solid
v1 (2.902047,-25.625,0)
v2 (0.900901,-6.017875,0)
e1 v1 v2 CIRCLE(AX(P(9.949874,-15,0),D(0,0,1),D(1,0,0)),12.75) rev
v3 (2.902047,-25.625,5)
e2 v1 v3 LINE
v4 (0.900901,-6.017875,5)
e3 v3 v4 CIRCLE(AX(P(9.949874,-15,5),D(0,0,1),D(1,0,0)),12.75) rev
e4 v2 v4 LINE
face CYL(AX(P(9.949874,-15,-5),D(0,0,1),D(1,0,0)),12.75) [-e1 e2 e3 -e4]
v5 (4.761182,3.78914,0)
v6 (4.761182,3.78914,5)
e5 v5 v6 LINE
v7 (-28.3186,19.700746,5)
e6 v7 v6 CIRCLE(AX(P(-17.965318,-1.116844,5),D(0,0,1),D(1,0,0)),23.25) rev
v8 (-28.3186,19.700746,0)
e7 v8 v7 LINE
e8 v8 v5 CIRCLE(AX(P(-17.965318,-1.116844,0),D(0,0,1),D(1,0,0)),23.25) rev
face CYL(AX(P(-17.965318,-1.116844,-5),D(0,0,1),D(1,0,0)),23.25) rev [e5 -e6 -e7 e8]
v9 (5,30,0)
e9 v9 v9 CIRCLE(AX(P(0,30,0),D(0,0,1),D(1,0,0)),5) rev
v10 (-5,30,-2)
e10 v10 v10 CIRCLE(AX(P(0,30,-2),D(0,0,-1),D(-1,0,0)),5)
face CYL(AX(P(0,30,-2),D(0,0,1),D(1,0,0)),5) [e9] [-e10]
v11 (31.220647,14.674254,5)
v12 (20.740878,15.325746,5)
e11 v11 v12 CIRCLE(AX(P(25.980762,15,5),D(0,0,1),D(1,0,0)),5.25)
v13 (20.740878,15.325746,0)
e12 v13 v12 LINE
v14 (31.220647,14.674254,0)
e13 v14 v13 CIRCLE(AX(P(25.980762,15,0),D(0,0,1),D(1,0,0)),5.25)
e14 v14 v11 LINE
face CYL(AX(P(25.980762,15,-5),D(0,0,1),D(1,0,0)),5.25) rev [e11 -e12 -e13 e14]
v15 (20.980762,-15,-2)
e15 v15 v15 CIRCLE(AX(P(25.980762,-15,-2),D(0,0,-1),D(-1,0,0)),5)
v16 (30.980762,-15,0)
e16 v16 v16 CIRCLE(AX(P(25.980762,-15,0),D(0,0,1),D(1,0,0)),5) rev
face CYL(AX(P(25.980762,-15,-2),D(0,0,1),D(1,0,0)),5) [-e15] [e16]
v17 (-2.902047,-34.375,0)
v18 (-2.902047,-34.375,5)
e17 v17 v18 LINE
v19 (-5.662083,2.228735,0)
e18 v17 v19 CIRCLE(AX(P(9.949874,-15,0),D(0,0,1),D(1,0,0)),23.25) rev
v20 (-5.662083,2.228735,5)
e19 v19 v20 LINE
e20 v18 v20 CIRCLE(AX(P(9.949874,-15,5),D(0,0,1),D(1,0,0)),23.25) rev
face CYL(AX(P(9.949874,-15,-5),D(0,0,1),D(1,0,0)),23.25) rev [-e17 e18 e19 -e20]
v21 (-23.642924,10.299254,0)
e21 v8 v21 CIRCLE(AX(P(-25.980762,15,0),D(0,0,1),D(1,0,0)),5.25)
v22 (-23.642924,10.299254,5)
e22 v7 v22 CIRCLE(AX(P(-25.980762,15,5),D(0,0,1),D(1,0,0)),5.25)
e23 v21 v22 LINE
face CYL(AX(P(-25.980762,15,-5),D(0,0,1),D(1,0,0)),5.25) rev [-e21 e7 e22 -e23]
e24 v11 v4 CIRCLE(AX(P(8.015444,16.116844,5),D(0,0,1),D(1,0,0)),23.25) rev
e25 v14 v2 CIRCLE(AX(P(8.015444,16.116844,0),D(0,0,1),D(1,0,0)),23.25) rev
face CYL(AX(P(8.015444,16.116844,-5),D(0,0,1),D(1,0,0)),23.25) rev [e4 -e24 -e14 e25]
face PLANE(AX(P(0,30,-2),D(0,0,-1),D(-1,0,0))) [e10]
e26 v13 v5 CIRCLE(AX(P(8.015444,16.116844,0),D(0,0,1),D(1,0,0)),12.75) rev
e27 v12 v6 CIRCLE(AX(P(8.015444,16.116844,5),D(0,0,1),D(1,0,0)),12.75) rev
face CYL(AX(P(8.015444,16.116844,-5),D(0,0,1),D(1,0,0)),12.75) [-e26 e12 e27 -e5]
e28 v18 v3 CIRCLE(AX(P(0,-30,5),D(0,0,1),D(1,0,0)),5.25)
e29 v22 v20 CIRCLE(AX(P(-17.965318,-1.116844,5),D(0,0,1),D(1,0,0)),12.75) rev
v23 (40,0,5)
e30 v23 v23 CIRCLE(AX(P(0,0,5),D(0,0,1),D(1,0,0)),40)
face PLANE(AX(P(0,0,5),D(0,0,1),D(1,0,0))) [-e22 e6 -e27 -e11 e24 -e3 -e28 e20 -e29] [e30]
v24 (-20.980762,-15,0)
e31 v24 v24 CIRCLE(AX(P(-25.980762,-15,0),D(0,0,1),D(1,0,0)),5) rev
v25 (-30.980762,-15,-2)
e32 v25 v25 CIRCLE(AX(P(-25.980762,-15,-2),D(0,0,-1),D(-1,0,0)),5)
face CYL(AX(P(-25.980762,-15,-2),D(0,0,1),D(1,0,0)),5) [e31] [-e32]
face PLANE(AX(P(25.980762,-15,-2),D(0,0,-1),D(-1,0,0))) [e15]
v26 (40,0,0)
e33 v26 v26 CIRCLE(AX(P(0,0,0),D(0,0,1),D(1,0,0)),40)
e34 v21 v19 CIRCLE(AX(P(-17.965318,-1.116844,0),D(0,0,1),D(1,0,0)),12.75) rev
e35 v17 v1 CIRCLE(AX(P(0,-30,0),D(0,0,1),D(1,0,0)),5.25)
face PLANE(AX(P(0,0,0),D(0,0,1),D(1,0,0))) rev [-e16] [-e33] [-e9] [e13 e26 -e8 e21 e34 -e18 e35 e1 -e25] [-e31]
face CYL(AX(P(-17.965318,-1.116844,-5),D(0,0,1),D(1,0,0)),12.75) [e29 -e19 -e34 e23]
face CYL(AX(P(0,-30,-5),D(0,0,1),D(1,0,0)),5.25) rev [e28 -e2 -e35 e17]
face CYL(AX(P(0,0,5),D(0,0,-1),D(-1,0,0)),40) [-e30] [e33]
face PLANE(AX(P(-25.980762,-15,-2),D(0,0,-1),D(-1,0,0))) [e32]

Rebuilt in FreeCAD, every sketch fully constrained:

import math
import FreeCAD as App
import Part
import Sketcher

V = App.Vector
Q = App.Units.Quantity

doc = App.newDocument("Part")
params = doc.addObject("Spreadsheet::Sheet", "Params")
for row, (alias, value) in enumerate([
    ("sketch1_diameter", "80 mm"),
    ("pad1_length", "5 mm"),
    ("sketch2_radius", "12.75 mm"),
    ("sketch2_radius2", "23.25 mm"),
    ("pocket1_length", "10 mm"),
    ("sketch3_diameter", "10 mm"),
    ("pad2_length", "2 mm"),
], start=1):
    params.set(f"A{row}", alias)
    params.set(f"B{row}", "=" + value)
    params.setAlias(f"B{row}", alias)

body = doc.addObject("PartDesign::Body", "Body")

sketch1 = body.newObject("Sketcher::SketchObject", "Sketch")
sketch1.AttachmentSupport = (doc.getObject("XY_Plane"), [""])
sketch1.MapMode = "FlatFace"
sketch1.addGeometry(Part.Circle(V(0, 0, 0), V(0, 0, 1), 40), False)
sketch1.addConstraint(Sketcher.Constraint("Coincident", 0, 3, -1, 1))
sketch1.addConstraint(Sketcher.Constraint("Diameter", 0, Q("80 mm")))
sketch1.setExpression("Constraints[1]", "Params.sketch1_diameter")
pad1 = body.newObject("PartDesign::Pad", "Pad")
pad1.Profile = sketch1
pad1.setExpression("Length", "Params.pad1_length")

sketch2 = body.newObject("Sketcher::SketchObject", "Sketch001")
sketch2.AttachmentSupport = (doc.getObject("XY_Plane"), [""])
sketch2.MapMode = "FlatFace"
sketch2.AttachmentOffset = App.Placement(V(0, 0, 5), App.Rotation())
sketch2.addGeometry(Part.ArcOfCircle(Part.Circle(V(8, 16, 0), V(0, 0, 1), 13), math.radians(-105), math.radians(-4)), False)
sketch2.addGeometry(Part.ArcOfCircle(Part.Circle(V(-18, -1, 0), V(0, 0, 1), 23), math.radians(12), math.radians(116)), False)
sketch2.addGeometry(Part.ArcOfCircle(Part.Circle(V(-26, 15, 0), V(0, 0, 1), 5), math.radians(116), math.radians(296)), False)
sketch2.addGeometry(Part.ArcOfCircle(Part.Circle(V(-18, -1, 0), V(0, 0, 1), 13), math.radians(15), math.radians(116)), False)
sketch2.addGeometry(Part.ArcOfCircle(Part.Circle(V(10, -15, 0), V(0, 0, 1), 23), math.radians(132), math.radians(236)), False)
sketch2.addGeometry(Part.ArcOfCircle(Part.Circle(V(0, -30, 0), V(0, 0, 1), 5), math.radians(-124), math.radians(56)), False)
sketch2.addGeometry(Part.ArcOfCircle(Part.Circle(V(10, -15, 0), V(0, 0, 1), 13), math.radians(135), math.radians(236)), False)
sketch2.addGeometry(Part.ArcOfCircle(Part.Circle(V(8, 16, 0), V(0, 0, 1), 23), math.radians(-108), math.radians(-4)), False)
sketch2.addGeometry(Part.ArcOfCircle(Part.Circle(V(26, 15, 0), V(0, 0, 1), 5), math.radians(-4), math.radians(176)), False)
sketch2.addConstraint(Sketcher.Constraint("Coincident", 0, 1, 1, 1))
sketch2.addConstraint(Sketcher.Constraint("Tangent", 1, 2, 2, 1))
sketch2.addConstraint(Sketcher.Constraint("Tangent", 2, 2, 3, 2))
sketch2.addConstraint(Sketcher.Constraint("Coincident", 3, 1, 4, 1))
sketch2.addConstraint(Sketcher.Constraint("Tangent", 4, 2, 5, 1))
sketch2.addConstraint(Sketcher.Constraint("Tangent", 5, 2, 6, 2))
sketch2.addConstraint(Sketcher.Constraint("Coincident", 6, 1, 7, 1))
sketch2.addConstraint(Sketcher.Constraint("Tangent", 7, 2, 8, 1))
sketch2.addConstraint(Sketcher.Constraint("Tangent", 8, 2, 0, 2))
sketch2.addConstraint(Sketcher.Constraint("Coincident", 3, 3, 1, 3))
sketch2.addConstraint(Sketcher.Constraint("Coincident", 6, 3, 4, 3))
sketch2.addConstraint(Sketcher.Constraint("Coincident", 7, 3, 0, 3))
sketch2.addConstraint(Sketcher.Constraint("Equal", 0, 3))
sketch2.addConstraint(Sketcher.Constraint("Equal", 1, 4))
sketch2.addConstraint(Sketcher.Constraint("Equal", 2, 5))
sketch2.addConstraint(Sketcher.Constraint("Equal", 4, 7))
sketch2.addConstraint(Sketcher.Constraint("Symmetric", 2, 3, 8, 3, -2))
sketch2.addConstraint(Sketcher.Constraint("PointOnObject", 5, 3, -2))
sketch2.addConstraint(Sketcher.Constraint("Radius", 0, Q("12.75 mm")))
sketch2.addConstraint(Sketcher.Constraint("Radius", 1, Q("23.25 mm")))
sketch2.addConstraint(Sketcher.Constraint("DistanceY", -1, 1, 2, 3, Q("15 mm")))
sketch2.addConstraint(Sketcher.Constraint("DistanceY", 4, 3, -1, 1, Q("15 mm")))
sketch2.addConstraint(Sketcher.Constraint("DistanceY", 5, 3, -1, 1, Q("30 mm")))
sketch2.addConstraint(Sketcher.Constraint("DistanceX", 1, 2, -1, 1, Q("28.3186 mm")))
sketch2.addConstraint(Sketcher.Constraint("DistanceX", -1, 1, 6, 1, Q("0.900901 mm")))
sketch2.addConstraint(Sketcher.Constraint("DistanceX", 1, 3, 0, 1, Q("22.7265 mm")))
sketch2.setExpression("Constraints[18]", "Params.sketch2_radius")
sketch2.setExpression("Constraints[19]", "Params.sketch2_radius2")
pocket1 = body.newObject("PartDesign::Pocket", "Pocket")
pocket1.Profile = sketch2
pocket1.setExpression("Length", "Params.pocket1_length")

sketch3 = body.newObject("Sketcher::SketchObject", "Sketch002")
sketch3.AttachmentSupport = (doc.getObject("XY_Plane"), [""])
sketch3.MapMode = "FlatFace"
sketch3.addGeometry(Part.Circle(V(0, 30, 0), V(0, 0, 1), 5), False)
sketch3.addGeometry(Part.Circle(V(-26, -15, 0), V(0, 0, 1), 5), False)
sketch3.addGeometry(Part.Circle(V(26, -15, 0), V(0, 0, 1), 5), False)
sketch3.addConstraint(Sketcher.Constraint("Equal", 0, 1))
sketch3.addConstraint(Sketcher.Constraint("Equal", 1, 2))
sketch3.addConstraint(Sketcher.Constraint("Symmetric", 1, 3, 2, 3, -2))
sketch3.addConstraint(Sketcher.Constraint("PointOnObject", 0, 3, -2))
sketch3.addConstraint(Sketcher.Constraint("Diameter", 0, Q("10 mm")))
sketch3.addConstraint(Sketcher.Constraint("DistanceY", -1, 1, 0, 3, Q("30 mm")))
sketch3.addConstraint(Sketcher.Constraint("DistanceY", 1, 3, -1, 1, Q("15 mm")))
sketch3.addConstraint(Sketcher.Constraint("DistanceX", 1, 3, -1, 1, Q("25.980762 mm")))
sketch3.setExpression("Constraints[4]", "Params.sketch3_diameter")
pad2 = body.newObject("PartDesign::Pad", "Pad001")
pad2.Profile = sketch3
pad2.setExpression("Length", "Params.pad2_length")
pad2.Reversed = True

doc.recompute()
